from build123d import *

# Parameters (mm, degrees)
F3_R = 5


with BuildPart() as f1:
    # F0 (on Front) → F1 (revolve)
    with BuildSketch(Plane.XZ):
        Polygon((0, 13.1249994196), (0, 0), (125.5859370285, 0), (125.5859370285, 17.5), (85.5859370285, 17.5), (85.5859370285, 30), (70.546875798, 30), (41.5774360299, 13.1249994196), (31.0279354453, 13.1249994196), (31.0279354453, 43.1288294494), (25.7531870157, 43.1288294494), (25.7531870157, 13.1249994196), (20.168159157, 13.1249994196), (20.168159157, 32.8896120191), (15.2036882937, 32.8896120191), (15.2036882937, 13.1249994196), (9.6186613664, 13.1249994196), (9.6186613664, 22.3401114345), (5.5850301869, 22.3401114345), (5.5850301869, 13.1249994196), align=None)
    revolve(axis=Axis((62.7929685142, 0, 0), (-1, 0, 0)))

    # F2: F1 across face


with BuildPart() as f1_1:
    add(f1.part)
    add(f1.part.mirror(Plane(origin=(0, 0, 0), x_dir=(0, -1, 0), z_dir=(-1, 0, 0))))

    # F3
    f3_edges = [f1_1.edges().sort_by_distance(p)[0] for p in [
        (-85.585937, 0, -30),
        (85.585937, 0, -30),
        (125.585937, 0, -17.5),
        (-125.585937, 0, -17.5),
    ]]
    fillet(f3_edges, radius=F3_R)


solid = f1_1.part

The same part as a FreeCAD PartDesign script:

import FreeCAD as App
import Part
import Sketcher
from FreeCAD import Vector


def edges_at(feature, points):
    """Names of the edges that pass closest to the given points."""
    edges = feature.Shape.Edges
    near = lambda p: min(range(len(edges)), key=lambda i: edges[i].distToShape(Part.Vertex(*p))[0])
    return sorted({f"Edge{near(p) + 1}" for p in points})


def add_polygon(sketch, points):
    """Adds a closed chain of lines whose ends are joined by coincident constraints."""
    first, n = sketch.GeometryCount, len(points)
    for a, b in zip(points, points[1:] + points[:1]):
        sketch.addGeometry(Part.LineSegment(App.Vector(*a, 0), App.Vector(*b, 0)), False)
    for i in range(n):
        sketch.addConstraint(Sketcher.Constraint("Coincident", first + i, 2, first + (i + 1) % n, 1))

doc = App.newDocument("Part")
body = doc.addObject("PartDesign::Body", "Body")

sketch1 = body.newObject("Sketcher::SketchObject", "Sketch")
sketch1.AttachmentSupport = (doc.getObject("XZ_Plane"), [""])
sketch1.MapMode = "FlatFace"
add_polygon(sketch1, [(0, 13.124999), (0, 0), (125.585937, 0), (125.585937, 17.5), (85.585937, 17.5), (85.585937, 30), (70.546876, 30), (41.577436, 13.124999), (31.027935, 13.124999), (31.027935, 43.128829), (25.753187, 43.128829), (25.753187, 13.124999), (20.168159, 13.124999), (20.168159, 32.889612), (15.203688, 32.889612), (15.203688, 13.124999), (9.618661, 13.124999), (9.618661, 22.340111), (5.58503, 22.340111), (5.58503, 13.124999)])
sketch1.addConstraint([
    Sketcher.Constraint("Vertical", 0),
    Sketcher.Constraint("Horizontal", 1),
    Sketcher.Constraint("Vertical", 2),
    Sketcher.Constraint("Horizontal", 3),
    Sketcher.Constraint("Vertical", 4),
    Sketcher.Constraint("Horizontal", 5),
    Sketcher.Constraint("Horizontal", 7),
    Sketcher.Constraint("Vertical", 8),
    Sketcher.Constraint("Horizontal", 9),
    Sketcher.Constraint("Vertical", 10),
    Sketcher.Constraint("Horizontal", 11),
    Sketcher.Constraint("Vertical", 12),
    Sketcher.Constraint("Horizontal", 13),
    Sketcher.Constraint("Vertical", 14),
    Sketcher.Constraint("Horizontal", 15),
    Sketcher.Constraint("Vertical", 16),
    Sketcher.Constraint("Horizontal", 17),
    Sketcher.Constraint("Vertical", 18),
    Sketcher.Constraint("Horizontal", 19),
    Sketcher.Constraint("Coincident", 0, 2, -1, 1),
    Sketcher.Constraint("Horizontal", 7, 2, 10, 2),
    Sketcher.Constraint("Horizontal", 11, 2, 14, 2),
    Sketcher.Constraint("Horizontal", 15, 2, 18, 2),
    Sketcher.Constraint("Equal", 11, 15),
    Sketcher.Constraint("DistanceX", 3, 2, 3, 1, 40.0),
    Sketcher.Constraint("DistanceY", 2, 1, 2, 2, 17.5),
    Sketcher.Constraint("DistanceY", 4, 1, 4, 2, 12.5),
    Sketcher.Constraint("DistanceY", 0, 2, 0, 1, 13.124999),
    Sketcher.Constraint("DistanceX", 7, 2, 7, 1, 10.549501),
    Sketcher.Constraint("DistanceX", 7, 2, 3, 2, 54.558002),
    Sketcher.Constraint("DistanceX", 5, 2, 5, 1, 15.039061),
    Sketcher.Constraint("DistanceX", 9, 2, 9, 1, 5.274748),
    Sketcher.Constraint("DistanceX", 13, 2, 13, 1, 4.964471),
    Sketcher.Constraint("DistanceX", 17, 2, 17, 1, 4.033631),
    Sketcher.Constraint("DistanceX", 19, 2, 19, 1, 5.58503),
    Sketcher.Constraint("DistanceY", 8, 1, 8, 2, 30.00383),
    Sketcher.Constraint("DistanceX", 13, 2, 9, 2, 10.549499),
    Sketcher.Constraint("DistanceY", 16, 2, 13, 2, 10.549501),
    Sketcher.Constraint("DistanceY", 12, 1, 12, 2, 19.764613),
])
revolution = body.newObject("PartDesign::Revolution", "Revolution")
revolution.Profile = sketch1
revolution.ReferenceAxis = (sketch1, ["H_Axis"])
revolution.Angle = 360
body2 = doc.addObject("PartDesign::Body", "Body001")
doc.recompute()

body2.BaseFeature = body
doc.recompute()

mirroring = doc.addObject("Part::Mirroring", "Mirroring")
mirroring.Source = body
mirroring.Base = Vector(0, 0, 0)
mirroring.Normal = Vector(-1, 0, 0)
body3 = doc.addObject("PartDesign::Body", "Body002")
body3.BaseFeature = mirroring
boolean = body2.newObject("PartDesign::Boolean", "Boolean")
boolean.Type = "Fuse"
boolean.addObjects([body3])
doc.recompute()

fillet = body2.newObject("PartDesign::Fillet", "Fillet")
fillet.Base = (boolean, edges_at(boolean, [
    (-85.586, 0, -30),
    (85.586, 0, -30),
    (125.586, 0, -17.5),
    (-125.586, 0, -17.5),
]))
fillet.Radius = 5
mirroring.Visibility = False

doc.recompute()
